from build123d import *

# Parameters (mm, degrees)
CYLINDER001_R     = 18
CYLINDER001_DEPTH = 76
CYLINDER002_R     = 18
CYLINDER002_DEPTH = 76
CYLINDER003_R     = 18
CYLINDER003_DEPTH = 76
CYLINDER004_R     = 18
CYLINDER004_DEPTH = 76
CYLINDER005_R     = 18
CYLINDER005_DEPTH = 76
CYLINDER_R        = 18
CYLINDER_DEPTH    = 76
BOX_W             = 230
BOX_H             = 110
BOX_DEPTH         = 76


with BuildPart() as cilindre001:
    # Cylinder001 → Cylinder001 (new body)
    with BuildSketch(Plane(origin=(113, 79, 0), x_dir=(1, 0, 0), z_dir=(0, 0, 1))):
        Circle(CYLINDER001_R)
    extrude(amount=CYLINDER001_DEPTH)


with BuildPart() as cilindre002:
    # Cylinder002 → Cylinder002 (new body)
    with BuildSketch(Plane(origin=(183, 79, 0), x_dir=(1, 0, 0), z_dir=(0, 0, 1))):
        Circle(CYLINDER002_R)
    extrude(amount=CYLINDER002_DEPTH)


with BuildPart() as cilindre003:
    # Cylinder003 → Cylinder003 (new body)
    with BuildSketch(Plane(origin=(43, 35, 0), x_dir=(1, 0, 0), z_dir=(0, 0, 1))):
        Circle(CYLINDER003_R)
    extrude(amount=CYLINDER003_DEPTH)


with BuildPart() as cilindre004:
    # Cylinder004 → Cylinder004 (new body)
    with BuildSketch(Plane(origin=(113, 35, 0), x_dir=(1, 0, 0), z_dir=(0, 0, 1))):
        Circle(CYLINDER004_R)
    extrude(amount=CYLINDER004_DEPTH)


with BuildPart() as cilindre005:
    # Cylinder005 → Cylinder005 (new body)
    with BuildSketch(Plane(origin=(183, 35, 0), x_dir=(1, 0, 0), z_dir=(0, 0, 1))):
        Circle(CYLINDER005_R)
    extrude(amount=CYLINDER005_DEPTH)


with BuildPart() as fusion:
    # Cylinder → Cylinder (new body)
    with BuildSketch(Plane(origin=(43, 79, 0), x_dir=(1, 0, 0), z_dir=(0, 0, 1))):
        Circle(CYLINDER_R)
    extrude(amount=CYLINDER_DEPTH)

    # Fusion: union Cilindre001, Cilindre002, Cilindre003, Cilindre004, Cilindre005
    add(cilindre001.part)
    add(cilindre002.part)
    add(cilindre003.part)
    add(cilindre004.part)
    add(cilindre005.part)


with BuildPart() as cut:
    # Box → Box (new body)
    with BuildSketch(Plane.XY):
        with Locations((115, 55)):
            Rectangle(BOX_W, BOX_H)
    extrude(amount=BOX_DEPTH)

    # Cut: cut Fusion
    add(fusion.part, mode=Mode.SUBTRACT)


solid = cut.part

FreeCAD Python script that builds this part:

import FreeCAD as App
import Part
import Sketcher
Q = App.Units.Quantity


def add_polygon(sketch, points):
    """Adds a closed chain of lines whose ends are joined by coincident constraints."""
    first, n = sketch.GeometryCount, len(points)
    for a, b in zip(points, points[1:] + points[:1]):
        sketch.addGeometry(Part.LineSegment(App.Vector(*a, 0), App.Vector(*b, 0)), False)
    for i in range(n):
        sketch.addConstraint(Sketcher.Constraint("Coincident", first + i, 2, first + (i + 1) % n, 1))

doc = App.newDocument("Part")
body = doc.addObject("PartDesign::Body", "Body")

# Sketch on XY plane
sketch1 = doc.addObject("Sketcher::SketchObject", "Sketch")
body.addObject(sketch1)
sketch1.AttachmentSupport = (doc.XY_Plane, [""])
sketch1.MapMode = "FlatFace"
sketch1.addGeometry(Part.Circle(App.Vector(113, 79, 0), App.Vector(0, 0, 1), 18), False)
sketch1.addConstraint([
    Sketcher.Constraint("Diameter", 0, Q("36 mm")),
    Sketcher.Constraint("DistanceX", -1, 1, 0, 3, Q("113 mm")),
    Sketcher.Constraint("DistanceY", -1, 1, 0, 3, Q("79 mm")),
])
pad1 = doc.addObject("PartDesign::Pad", "Pad")
body.addObject(pad1)
pad1.Profile = sketch1
pad1.Length = 76
body2 = doc.addObject("PartDesign::Body", "Body001")

# Sketch on XY plane
sketch2 = doc.addObject("Sketcher::SketchObject", "Sketch001")
body2.addObject(sketch2)
sketch2.AttachmentSupport = (doc.getObject("XY_Plane001"), [""])
sketch2.MapMode = "FlatFace"
sketch2.addGeometry(Part.Circle(App.Vector(183, 79, 0), App.Vector(0, 0, 1), 18), False)
sketch2.addConstraint([
    Sketcher.Constraint("Diameter", 0, Q("36 mm")),
    Sketcher.Constraint("DistanceX", -1, 1, 0, 3, Q("183 mm")),
    Sketcher.Constraint("DistanceY", -1, 1, 0, 3, Q("79 mm")),
])
pad2 = doc.addObject("PartDesign::Pad", "Pad001")
body2.addObject(pad2)
pad2.Profile = sketch2
pad2.Length = 76
body3 = doc.addObject("PartDesign::Body", "Body002")

# Sketch on XY plane
sketch3 = doc.addObject("Sketcher::SketchObject", "Sketch002")
body3.addObject(sketch3)
sketch3.AttachmentSupport = (doc.getObject("XY_Plane002"), [""])
sketch3.MapMode = "FlatFace"
sketch3.addGeometry(Part.Circle(App.Vector(43, 35, 0), App.Vector(0, 0, 1), 18), False)
sketch3.addConstraint([
    Sketcher.Constraint("Diameter", 0, Q("36 mm")),
    Sketcher.Constraint("DistanceX", -1, 1, 0, 3, Q("43 mm")),
    Sketcher.Constraint("DistanceY", -1, 1, 0, 3, Q("35 mm")),
])
pad3 = doc.addObject("PartDesign::Pad", "Pad002")
body3.addObject(pad3)
pad3.Profile = sketch3
pad3.Length = 76
body4 = doc.addObject("PartDesign::Body", "Body003")

# Sketch on XY plane
sketch4 = doc.addObject("Sketcher::SketchObject", "Sketch003")
body4.addObject(sketch4)
sketch4.AttachmentSupport = (doc.getObject("XY_Plane003"), [""])
sketch4.MapMode = "FlatFace"
sketch4.addGeometry(Part.Circle(App.Vector(113, 35, 0), App.Vector(0, 0, 1), 18), False)
sketch4.addConstraint([
    Sketcher.Constraint("Diameter", 0, Q("36 mm")),
    Sketcher.Constraint("DistanceX", -1, 1, 0, 3, Q("113 mm")),
    Sketcher.Constraint("DistanceY", -1, 1, 0, 3, Q("35 mm")),
])
pad4 = doc.addObject("PartDesign::Pad", "Pad003")
body4.addObject(pad4)
pad4.Profile = sketch4
pad4.Length = 76
body5 = doc.addObject("PartDesign::Body", "Body004")

# Sketch on XY plane
sketch5 = doc.addObject("Sketcher::SketchObject", "Sketch004")
body5.addObject(sketch5)
sketch5.AttachmentSupport = (doc.getObject("XY_Plane004"), [""])
sketch5.MapMode = "FlatFace"
sketch5.addGeometry(Part.Circle(App.Vector(183, 35, 0), App.Vector(0, 0, 1), 18), False)
sketch5.addConstraint([
    Sketcher.Constraint("Diameter", 0, Q("36 mm")),
    Sketcher.Constraint("DistanceX", -1, 1, 0, 3, Q("183 mm")),
    Sketcher.Constraint("DistanceY", -1, 1, 0, 3, Q("35 mm")),
])
pad5 = doc.addObject("PartDesign::Pad", "Pad004")
body5.addObject(pad5)
pad5.Profile = sketch5
pad5.Length = 76
body6 = doc.addObject("PartDesign::Body", "Body005")
body6.AllowCompound = True

# Sketch on XY plane
sketch6 = doc.addObject("Sketcher::SketchObject", "Sketch005")
body6.addObject(sketch6)
sketch6.AttachmentSupport = (doc.getObject("XY_Plane005"), [""])
sketch6.MapMode = "FlatFace"
sketch6.addGeometry(Part.Circle(App.Vector(43, 79, 0), App.Vector(0, 0, 1), 18), False)
sketch6.addConstraint([
    Sketcher.Constraint("Diameter", 0, Q("36 mm")),
    Sketcher.Constraint("DistanceX", -1, 1, 0, 3, Q("43 mm")),
    Sketcher.Constraint("DistanceY", -1, 1, 0, 3, Q("79 mm")),
])
pad6 = doc.addObject("PartDesign::Pad", "Pad005")
body6.addObject(pad6)
pad6.Profile = sketch6
pad6.Length = 76
doc.recompute()

boolean = doc.addObject("PartDesign::Boolean", "Boolean")
body6.addObject(boolean)
boolean.Type = "Fuse"
boolean.addObjects([body])
doc.recompute()

boolean2 = doc.addObject("PartDesign::Boolean", "Boolean001")
body6.addObject(boolean2)
boolean2.Type = "Fuse"
boolean2.addObjects([body2])
doc.recompute()

boolean3 = doc.addObject("PartDesign::Boolean", "Boolean002")
body6.addObject(boolean3)
boolean3.Type = "Fuse"
boolean3.addObjects([body3])
doc.recompute()

boolean4 = doc.addObject("PartDesign::Boolean", "Boolean003")
body6.addObject(boolean4)
boolean4.Type = "Fuse"
boolean4.addObjects([body4])
doc.recompute()

boolean5 = doc.addObject("PartDesign::Boolean", "Boolean004")
body6.addObject(boolean5)
boolean5.Type = "Fuse"
boolean5.addObjects([body5])
body7 = doc.addObject("PartDesign::Body", "Body006")

# Sketch on XY plane
sketch7 = doc.addObject("Sketcher::SketchObject", "Sketch006")
body7.addObject(sketch7)
sketch7.AttachmentSupport = (doc.getObject("XY_Plane006"), [""])
sketch7.MapMode = "FlatFace"
add_polygon(sketch7, [(0, 110), (0, 0), (230, 0), (230, 110)])  # lines 0-3
sketch7.addConstraint([
    Sketcher.Constraint("Vertical", 0),
    Sketcher.Constraint("Horizontal", 1),
    Sketcher.Constraint("Vertical", 2),
    Sketcher.Constraint("Horizontal", 3),
    Sketcher.Constraint("Coincident", 0, 2, -1, 1),
    Sketcher.Constraint("DistanceX", 1, 1, 1, 2, Q("230 mm")),
    Sketcher.Constraint("DistanceY", 0, 2, 0, 1, Q("110 mm")),
])
pad7 = doc.addObject("PartDesign::Pad", "Pad006")
body7.addObject(pad7)
pad7.Profile = sketch7
pad7.Length = 76
doc.recompute()

boolean6 = doc.addObject("PartDesign::Boolean", "Boolean005")
body7.addObject(boolean6)
boolean6.Type = "Cut"
boolean6.addObjects([body6])

doc.recompute()
